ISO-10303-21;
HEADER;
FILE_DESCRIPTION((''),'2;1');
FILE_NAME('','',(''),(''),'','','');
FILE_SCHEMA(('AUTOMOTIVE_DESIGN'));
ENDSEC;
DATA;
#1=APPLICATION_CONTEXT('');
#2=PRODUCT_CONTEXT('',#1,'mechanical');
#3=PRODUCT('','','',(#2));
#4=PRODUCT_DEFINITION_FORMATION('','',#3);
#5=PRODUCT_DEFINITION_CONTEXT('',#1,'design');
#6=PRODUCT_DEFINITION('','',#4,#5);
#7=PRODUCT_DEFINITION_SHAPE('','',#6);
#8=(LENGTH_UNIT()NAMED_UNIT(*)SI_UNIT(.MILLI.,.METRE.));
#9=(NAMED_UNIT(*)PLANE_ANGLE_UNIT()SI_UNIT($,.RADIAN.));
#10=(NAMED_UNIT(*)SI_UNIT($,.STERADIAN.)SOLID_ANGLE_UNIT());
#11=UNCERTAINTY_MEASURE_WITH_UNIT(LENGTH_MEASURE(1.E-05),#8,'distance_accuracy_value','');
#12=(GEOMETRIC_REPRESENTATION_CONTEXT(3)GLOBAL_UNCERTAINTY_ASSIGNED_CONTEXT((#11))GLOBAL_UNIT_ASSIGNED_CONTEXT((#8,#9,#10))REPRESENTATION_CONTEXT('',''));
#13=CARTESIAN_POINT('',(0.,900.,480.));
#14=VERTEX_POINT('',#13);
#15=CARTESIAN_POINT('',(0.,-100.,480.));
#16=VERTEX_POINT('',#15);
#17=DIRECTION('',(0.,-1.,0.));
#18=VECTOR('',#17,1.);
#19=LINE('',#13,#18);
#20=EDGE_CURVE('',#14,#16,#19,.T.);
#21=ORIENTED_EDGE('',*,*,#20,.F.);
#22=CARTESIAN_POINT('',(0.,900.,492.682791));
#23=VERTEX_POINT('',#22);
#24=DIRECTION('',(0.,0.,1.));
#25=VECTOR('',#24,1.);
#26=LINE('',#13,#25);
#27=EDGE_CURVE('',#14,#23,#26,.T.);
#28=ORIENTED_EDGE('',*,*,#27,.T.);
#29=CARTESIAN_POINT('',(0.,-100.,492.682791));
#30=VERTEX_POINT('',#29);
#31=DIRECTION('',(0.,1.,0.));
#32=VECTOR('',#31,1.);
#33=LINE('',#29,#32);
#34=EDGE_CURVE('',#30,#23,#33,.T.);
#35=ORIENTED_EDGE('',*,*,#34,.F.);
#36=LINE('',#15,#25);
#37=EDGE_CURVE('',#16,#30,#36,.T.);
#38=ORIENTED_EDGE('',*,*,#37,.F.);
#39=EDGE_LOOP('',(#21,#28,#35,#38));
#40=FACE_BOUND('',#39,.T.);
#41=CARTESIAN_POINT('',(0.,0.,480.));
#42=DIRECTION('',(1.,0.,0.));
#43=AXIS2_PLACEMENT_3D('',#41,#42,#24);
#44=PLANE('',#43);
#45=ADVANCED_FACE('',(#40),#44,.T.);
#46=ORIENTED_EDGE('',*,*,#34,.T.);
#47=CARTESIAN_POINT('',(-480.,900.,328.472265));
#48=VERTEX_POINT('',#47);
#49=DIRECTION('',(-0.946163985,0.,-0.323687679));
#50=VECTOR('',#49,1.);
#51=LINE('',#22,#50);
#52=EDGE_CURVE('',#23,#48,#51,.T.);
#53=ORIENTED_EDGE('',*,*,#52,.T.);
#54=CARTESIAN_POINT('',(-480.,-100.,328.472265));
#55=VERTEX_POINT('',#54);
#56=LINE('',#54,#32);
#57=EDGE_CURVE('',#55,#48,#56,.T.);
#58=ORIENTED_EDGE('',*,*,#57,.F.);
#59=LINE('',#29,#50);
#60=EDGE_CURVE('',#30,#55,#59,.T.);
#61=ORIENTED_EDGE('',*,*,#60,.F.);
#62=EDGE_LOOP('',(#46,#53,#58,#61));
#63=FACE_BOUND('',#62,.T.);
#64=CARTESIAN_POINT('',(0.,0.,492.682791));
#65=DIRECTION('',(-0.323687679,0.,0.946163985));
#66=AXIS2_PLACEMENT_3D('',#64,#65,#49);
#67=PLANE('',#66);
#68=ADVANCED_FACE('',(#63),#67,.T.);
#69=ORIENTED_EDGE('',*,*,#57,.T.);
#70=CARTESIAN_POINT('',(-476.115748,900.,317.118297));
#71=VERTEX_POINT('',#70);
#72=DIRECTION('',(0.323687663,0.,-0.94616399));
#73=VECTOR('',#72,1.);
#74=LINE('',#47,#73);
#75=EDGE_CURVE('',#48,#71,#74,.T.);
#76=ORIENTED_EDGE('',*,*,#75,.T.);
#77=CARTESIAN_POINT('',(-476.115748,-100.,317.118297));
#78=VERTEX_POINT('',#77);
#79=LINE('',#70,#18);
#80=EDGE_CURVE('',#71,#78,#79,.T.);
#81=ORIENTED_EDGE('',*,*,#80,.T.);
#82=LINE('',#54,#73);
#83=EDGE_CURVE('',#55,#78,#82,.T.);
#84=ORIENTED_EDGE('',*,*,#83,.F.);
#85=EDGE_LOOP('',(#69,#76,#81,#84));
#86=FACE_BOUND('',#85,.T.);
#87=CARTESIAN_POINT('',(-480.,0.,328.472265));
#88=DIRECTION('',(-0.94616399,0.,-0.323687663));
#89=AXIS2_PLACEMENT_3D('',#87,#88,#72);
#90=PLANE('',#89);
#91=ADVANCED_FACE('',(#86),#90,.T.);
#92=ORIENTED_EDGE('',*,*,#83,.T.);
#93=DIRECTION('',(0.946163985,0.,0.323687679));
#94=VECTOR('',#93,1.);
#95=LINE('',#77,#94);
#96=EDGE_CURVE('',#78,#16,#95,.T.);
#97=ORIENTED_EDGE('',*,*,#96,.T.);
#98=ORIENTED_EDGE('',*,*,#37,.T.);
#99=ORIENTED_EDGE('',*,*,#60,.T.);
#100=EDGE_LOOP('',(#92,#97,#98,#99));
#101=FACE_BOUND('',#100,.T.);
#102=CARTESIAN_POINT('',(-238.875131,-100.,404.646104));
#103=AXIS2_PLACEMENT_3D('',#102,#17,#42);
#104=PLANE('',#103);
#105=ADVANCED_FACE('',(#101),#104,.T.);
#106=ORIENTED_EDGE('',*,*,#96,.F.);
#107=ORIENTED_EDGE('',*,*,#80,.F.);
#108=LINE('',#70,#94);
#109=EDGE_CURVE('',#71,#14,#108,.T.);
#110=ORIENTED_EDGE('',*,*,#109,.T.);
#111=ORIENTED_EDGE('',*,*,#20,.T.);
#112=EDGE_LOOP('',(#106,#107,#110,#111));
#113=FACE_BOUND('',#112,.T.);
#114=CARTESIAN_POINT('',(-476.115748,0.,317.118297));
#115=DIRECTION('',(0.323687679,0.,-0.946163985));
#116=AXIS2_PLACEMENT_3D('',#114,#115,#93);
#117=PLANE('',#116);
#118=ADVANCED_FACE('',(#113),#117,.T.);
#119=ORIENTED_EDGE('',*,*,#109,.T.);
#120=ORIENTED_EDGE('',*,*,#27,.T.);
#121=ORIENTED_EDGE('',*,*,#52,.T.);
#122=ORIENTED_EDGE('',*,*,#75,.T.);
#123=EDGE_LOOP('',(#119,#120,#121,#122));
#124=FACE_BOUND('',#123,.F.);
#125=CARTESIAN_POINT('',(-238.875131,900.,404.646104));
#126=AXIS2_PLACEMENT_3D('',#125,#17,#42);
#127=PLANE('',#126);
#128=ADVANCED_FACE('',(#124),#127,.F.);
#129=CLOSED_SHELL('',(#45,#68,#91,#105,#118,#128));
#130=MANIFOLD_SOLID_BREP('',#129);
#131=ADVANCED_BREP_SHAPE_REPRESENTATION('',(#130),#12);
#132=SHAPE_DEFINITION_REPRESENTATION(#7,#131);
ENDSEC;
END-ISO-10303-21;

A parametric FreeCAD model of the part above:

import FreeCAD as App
import Part
import Sketcher
Q = App.Units.Quantity

doc = App.newDocument("Part")
body = doc.addObject("PartDesign::Body", "Body")

# Sketch on XZ plane
sketch1 = doc.addObject("Sketcher::SketchObject", "Sketch")
body.addObject(sketch1)
sketch1.AttachmentSupport = (doc.XZ_Plane, [""])
sketch1.MapMode = "FlatFace"
sketch1.addGeometry(Part.LineSegment(App.Vector(-480, 328, 0), App.Vector(-476, 317, 0)), False)
sketch1.addGeometry(Part.LineSegment(App.Vector(-476, 317, 0), App.Vector(0, 480, 0)), False)
sketch1.addGeometry(Part.LineSegment(App.Vector(0, 480, 0), App.Vector(0, 493, 0)), False)
sketch1.addGeometry(Part.LineSegment(App.Vector(0, 493, 0), App.Vector(-480, 328, 0)), False)
sketch1.addConstraint(Sketcher.Constraint("Coincident", 0, 2, 1, 1))
sketch1.addConstraint(Sketcher.Constraint("Coincident", 1, 2, 2, 1))
sketch1.addConstraint(Sketcher.Constraint("Coincident", 2, 2, 3, 1))
sketch1.addConstraint(Sketcher.Constraint("Coincident", 3, 2, 0, 1))
sketch1.addConstraint(Sketcher.Constraint("Vertical", 2))
sketch1.addConstraint(Sketcher.Constraint("PointOnObject", 1, 2, -2))
sketch1.addConstraint(Sketcher.Constraint("Perpendicular", 0, 1))
sketch1.addConstraint(Sketcher.Constraint("Parallel", 1, 3))
sketch1.addConstraint(Sketcher.Constraint("Distance", 0, Q("12 mm")))
sketch1.addConstraint(Sketcher.Constraint("DistanceY", -1, 1, 1, 2, Q("480 mm")))
sketch1.addConstraint(Sketcher.Constraint("DistanceX", 3, 2, -1, 1, Q("480 mm")))
sketch1.addConstraint(Sketcher.Constraint("DistanceY", 2, 1, 2, 2, Q("12.682791 mm")))
pad1 = doc.addObject("PartDesign::Pad", "Pad")
body.addObject(pad1)
pad1.Profile = sketch1
pad1.Length = 12

# Sketch on XZ plane
sketch2 = doc.addObject("Sketcher::SketchObject", "Sketch001")
body.addObject(sketch2)
sketch2.AttachmentSupport = (doc.XZ_Plane, [""])
sketch2.MapMode = "FlatFace"
sketch2.addGeometry(Part.LineSegment(App.Vector(-480, 328, 0), App.Vector(-476, 317, 0)), False)
sketch2.addGeometry(Part.LineSegment(App.Vector(-476, 317, 0), App.Vector(0, 480, 0)), False)
sketch2.addGeometry(Part.LineSegment(App.Vector(0, 480, 0), App.Vector(0, 493, 0)), False)
sketch2.addGeometry(Part.LineSegment(App.Vector(0, 493, 0), App.Vector(-480, 328, 0)), False)
sketch2.addConstraint(Sketcher.Constraint("Coincident", 0, 2, 1, 1))
sketch2.addConstraint(Sketcher.Constraint("Coincident", 1, 2, 2, 1))
sketch2.addConstraint(Sketcher.Constraint("Coincident", 2, 2, 3, 1))
sketch2.addConstraint(Sketcher.Constraint("Coincident", 3, 2, 0, 1))
sketch2.addConstraint(Sketcher.Constraint("Vertical", 2))
sketch2.addConstraint(Sketcher.Constraint("PointOnObject", 1, 2, -2))
sketch2.addConstraint(Sketcher.Constraint("Perpendicular", 0, 1))
sketch2.addConstraint(Sketcher.Constraint("Parallel", 1, 3))
sketch2.addConstraint(Sketcher.Constraint("Distance", 0, Q("12 mm")))
sketch2.addConstraint(Sketcher.Constraint("DistanceY", -1, 1, 1, 2, Q("480 mm")))
sketch2.addConstraint(Sketcher.Constraint("DistanceX", 3, 2, -1, 1, Q("480 mm")))
sketch2.addConstraint(Sketcher.Constraint("DistanceY", 2, 1, 2, 2, Q("12.682791 mm")))
pad2 = doc.addObject("PartDesign::Pad", "Pad001")
body.addObject(pad2)
pad2.Profile = sketch2
pad2.Type = "TwoLengths"
pad2.Length = 100
pad2.Length2 = 900

doc.recompute()
